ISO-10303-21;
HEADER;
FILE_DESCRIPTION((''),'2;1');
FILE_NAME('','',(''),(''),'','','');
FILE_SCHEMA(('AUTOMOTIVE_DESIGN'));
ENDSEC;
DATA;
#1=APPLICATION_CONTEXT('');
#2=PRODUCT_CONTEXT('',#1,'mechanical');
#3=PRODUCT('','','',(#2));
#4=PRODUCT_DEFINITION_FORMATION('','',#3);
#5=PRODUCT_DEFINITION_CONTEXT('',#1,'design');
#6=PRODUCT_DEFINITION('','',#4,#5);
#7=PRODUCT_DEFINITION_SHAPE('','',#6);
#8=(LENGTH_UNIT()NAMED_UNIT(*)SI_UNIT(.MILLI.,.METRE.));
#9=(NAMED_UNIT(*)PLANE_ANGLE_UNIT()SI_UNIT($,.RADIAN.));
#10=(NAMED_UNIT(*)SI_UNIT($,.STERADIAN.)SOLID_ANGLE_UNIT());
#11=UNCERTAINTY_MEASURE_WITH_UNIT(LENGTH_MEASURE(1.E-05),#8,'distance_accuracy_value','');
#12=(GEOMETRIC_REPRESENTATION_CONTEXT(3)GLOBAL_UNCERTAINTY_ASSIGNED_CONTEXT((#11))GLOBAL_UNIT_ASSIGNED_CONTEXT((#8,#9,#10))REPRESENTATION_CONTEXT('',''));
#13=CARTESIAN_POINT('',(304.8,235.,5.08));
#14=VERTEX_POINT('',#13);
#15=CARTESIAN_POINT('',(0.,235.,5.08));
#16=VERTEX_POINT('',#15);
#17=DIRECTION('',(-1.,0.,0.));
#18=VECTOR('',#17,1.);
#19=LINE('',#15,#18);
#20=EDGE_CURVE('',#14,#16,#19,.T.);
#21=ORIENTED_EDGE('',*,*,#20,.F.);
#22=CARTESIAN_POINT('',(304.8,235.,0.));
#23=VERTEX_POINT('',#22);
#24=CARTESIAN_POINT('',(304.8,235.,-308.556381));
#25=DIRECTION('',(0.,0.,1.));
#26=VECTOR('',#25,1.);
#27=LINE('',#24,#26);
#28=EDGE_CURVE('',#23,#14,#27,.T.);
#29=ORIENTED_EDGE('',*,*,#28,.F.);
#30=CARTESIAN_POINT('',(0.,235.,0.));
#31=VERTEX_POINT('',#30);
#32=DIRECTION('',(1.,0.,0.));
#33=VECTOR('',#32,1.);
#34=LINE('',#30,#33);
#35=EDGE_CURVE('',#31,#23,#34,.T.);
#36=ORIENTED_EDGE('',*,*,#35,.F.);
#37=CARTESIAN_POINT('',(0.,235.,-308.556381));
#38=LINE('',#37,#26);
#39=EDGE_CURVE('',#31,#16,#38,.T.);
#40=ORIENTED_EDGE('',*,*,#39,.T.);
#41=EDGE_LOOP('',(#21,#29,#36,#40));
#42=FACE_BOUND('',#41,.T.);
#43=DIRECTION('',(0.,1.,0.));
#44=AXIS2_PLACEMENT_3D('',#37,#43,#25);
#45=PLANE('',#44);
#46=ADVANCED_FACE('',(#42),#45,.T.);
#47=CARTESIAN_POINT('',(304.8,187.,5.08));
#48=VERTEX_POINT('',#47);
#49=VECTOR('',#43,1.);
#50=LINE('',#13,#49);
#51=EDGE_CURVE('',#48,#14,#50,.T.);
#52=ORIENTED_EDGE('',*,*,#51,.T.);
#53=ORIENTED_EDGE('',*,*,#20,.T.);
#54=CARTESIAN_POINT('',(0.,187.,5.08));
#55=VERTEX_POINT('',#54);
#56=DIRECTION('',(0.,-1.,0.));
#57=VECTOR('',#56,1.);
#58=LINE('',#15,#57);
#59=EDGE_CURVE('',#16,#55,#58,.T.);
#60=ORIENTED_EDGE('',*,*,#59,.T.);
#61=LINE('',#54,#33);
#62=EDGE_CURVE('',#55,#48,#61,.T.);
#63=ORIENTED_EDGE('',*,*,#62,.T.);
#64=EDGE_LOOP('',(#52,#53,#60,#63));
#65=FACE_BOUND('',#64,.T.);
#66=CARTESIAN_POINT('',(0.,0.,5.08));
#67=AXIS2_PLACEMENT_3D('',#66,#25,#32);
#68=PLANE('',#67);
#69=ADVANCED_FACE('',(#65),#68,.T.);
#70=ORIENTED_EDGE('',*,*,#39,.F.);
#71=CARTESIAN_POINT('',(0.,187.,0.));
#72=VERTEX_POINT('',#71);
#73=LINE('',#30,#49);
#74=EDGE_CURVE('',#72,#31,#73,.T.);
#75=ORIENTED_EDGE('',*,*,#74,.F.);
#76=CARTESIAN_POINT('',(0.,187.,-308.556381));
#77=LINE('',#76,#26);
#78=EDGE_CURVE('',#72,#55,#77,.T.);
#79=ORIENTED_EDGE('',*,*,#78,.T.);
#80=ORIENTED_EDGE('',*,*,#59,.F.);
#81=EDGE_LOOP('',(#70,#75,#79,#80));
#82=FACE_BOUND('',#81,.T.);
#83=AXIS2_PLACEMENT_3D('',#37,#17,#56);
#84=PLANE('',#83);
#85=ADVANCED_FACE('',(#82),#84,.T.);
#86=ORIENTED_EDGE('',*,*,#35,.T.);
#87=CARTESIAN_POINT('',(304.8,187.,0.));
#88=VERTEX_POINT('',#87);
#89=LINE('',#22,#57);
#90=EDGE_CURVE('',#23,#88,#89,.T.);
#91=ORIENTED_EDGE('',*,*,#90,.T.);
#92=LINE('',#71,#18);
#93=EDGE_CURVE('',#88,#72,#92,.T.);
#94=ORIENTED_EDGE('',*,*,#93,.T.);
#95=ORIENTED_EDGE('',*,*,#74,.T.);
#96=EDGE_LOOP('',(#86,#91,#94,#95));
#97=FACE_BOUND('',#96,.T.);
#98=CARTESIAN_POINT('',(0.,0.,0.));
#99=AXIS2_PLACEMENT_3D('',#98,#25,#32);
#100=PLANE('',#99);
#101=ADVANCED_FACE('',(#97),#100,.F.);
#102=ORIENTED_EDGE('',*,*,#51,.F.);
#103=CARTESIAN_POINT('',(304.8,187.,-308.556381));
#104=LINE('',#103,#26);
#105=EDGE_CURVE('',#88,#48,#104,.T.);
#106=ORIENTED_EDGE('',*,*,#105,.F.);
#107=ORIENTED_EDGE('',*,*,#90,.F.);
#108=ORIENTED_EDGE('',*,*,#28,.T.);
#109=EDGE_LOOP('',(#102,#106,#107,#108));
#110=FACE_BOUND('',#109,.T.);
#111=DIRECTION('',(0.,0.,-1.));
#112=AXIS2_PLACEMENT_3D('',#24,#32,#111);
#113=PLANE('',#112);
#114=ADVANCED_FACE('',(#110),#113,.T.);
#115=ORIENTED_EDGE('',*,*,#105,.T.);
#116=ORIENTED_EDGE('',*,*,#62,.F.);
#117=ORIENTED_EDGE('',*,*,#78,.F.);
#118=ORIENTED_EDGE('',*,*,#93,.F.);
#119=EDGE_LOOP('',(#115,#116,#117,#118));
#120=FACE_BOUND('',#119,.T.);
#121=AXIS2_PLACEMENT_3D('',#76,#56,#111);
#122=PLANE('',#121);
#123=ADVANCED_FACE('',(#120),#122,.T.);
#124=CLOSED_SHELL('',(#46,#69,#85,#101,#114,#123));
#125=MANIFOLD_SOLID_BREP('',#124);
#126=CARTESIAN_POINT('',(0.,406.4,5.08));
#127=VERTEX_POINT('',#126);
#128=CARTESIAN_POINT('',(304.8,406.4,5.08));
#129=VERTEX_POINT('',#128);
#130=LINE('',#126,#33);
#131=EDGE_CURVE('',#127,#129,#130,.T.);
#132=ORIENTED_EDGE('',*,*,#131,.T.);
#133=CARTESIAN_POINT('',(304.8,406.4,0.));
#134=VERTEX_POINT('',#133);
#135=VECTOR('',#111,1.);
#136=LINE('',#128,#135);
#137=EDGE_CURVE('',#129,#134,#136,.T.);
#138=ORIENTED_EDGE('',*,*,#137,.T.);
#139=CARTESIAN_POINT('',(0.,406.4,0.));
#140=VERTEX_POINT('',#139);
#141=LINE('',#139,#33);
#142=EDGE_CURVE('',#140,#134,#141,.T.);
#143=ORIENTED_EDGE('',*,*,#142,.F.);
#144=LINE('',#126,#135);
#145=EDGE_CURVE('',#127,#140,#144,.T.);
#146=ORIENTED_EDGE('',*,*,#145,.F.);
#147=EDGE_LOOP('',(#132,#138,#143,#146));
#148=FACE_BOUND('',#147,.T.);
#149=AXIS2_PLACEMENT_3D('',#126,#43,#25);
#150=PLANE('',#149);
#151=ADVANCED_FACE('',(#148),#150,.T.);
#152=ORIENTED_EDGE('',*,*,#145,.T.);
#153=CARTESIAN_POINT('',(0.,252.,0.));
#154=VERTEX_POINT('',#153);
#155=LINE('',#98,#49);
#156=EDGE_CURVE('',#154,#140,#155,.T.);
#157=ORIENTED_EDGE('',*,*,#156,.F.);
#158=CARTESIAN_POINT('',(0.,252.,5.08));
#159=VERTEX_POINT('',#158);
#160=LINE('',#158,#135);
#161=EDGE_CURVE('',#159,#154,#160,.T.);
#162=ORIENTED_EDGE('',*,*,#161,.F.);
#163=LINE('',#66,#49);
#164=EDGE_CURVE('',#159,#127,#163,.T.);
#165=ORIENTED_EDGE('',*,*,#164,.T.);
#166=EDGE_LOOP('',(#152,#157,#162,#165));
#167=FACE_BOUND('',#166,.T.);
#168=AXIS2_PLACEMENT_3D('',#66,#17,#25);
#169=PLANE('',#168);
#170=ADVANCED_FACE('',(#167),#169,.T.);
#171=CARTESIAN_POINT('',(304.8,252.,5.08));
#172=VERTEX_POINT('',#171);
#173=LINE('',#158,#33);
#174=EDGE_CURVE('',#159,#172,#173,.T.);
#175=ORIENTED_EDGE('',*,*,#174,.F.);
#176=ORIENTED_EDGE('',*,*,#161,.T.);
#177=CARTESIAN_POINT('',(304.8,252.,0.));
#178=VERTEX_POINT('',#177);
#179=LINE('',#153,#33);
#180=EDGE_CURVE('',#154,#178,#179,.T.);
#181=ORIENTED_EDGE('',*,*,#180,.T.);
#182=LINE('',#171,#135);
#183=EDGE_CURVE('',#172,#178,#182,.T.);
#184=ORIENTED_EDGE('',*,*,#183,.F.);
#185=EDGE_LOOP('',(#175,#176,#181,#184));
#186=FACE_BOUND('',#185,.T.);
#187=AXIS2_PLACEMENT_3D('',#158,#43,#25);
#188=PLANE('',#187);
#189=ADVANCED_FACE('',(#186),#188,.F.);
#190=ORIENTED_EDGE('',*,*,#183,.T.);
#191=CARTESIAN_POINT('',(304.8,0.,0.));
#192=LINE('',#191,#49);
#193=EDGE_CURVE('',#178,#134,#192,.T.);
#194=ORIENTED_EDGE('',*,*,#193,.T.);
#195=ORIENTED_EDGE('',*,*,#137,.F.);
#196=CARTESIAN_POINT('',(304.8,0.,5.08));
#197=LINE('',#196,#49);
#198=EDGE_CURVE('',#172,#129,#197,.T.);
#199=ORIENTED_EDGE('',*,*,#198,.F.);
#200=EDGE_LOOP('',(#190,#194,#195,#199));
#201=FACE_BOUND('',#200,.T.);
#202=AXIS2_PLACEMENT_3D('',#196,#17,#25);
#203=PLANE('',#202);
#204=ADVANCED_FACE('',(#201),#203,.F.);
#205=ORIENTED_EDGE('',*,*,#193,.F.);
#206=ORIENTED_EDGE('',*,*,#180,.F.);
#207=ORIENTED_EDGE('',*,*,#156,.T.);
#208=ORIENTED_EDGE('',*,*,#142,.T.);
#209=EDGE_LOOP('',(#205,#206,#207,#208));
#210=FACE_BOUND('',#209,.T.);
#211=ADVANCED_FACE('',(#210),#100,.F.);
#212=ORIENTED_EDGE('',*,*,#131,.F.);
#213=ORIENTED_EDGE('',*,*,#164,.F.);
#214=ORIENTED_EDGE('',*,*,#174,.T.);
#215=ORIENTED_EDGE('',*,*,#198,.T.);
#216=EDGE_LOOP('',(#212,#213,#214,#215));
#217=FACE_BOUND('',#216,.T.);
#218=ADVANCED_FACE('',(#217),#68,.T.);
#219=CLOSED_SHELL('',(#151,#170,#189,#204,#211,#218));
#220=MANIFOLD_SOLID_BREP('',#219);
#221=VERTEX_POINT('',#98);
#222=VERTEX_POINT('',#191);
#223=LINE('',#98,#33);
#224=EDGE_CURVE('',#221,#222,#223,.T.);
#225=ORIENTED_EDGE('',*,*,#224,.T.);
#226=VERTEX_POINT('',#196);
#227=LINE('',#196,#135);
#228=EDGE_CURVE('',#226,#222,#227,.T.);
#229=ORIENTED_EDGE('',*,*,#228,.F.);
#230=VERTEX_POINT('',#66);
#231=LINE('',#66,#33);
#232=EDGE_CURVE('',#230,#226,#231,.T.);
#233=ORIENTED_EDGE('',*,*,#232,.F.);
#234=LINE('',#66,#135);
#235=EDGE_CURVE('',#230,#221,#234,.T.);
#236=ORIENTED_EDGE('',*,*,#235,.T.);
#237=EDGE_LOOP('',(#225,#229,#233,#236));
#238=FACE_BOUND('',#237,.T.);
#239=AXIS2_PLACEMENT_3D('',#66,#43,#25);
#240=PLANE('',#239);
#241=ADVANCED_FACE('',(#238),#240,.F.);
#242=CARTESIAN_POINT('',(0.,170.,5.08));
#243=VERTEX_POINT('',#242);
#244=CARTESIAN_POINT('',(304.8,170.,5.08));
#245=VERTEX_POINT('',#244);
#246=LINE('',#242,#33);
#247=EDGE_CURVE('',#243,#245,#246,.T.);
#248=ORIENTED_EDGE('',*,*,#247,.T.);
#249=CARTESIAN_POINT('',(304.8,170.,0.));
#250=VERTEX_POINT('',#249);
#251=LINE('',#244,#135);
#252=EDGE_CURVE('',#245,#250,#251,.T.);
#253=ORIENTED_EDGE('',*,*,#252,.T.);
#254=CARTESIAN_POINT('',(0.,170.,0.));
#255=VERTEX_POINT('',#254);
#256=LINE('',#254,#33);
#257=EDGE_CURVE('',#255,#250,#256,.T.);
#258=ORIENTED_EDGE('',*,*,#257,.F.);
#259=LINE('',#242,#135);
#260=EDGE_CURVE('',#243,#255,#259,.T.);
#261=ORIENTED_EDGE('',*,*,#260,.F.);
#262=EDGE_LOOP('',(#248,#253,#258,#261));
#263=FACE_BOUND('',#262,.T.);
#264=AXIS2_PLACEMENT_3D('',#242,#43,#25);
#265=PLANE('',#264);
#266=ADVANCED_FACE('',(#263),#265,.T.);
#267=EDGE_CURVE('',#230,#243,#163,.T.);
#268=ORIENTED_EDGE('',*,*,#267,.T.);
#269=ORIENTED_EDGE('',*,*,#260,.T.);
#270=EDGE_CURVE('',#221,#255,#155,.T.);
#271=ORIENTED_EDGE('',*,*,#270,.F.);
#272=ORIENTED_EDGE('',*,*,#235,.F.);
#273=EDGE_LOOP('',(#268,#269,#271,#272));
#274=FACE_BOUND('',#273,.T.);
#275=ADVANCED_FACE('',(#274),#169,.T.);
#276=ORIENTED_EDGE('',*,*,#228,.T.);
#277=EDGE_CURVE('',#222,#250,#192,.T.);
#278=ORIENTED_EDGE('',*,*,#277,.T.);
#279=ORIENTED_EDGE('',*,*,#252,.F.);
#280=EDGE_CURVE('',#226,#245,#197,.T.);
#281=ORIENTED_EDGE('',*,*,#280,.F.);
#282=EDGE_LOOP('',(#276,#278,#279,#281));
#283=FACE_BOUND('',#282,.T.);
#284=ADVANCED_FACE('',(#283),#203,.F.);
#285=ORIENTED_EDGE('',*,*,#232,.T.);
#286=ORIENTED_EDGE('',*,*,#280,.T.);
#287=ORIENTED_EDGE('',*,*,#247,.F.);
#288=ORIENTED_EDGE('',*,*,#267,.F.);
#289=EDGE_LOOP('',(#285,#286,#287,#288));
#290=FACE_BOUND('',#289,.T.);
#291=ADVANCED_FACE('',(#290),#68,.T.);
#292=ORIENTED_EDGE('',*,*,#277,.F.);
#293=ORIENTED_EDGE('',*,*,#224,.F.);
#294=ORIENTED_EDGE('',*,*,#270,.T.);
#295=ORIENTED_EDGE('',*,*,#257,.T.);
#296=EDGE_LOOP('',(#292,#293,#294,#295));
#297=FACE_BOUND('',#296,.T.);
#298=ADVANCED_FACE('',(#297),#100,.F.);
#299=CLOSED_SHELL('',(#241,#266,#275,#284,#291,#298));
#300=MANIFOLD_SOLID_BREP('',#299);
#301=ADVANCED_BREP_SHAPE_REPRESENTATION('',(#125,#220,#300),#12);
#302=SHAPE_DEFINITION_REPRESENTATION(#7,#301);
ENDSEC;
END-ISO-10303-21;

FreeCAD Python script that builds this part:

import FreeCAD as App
import Part
import Sketcher

V = App.Vector
Q = App.Units.Quantity


def add_polygon(sketch, points):
    """Adds a closed chain of lines whose ends are joined by coincident constraints."""
    first, n = sketch.GeometryCount, len(points)
    for a, b in zip(points, points[1:] + points[:1]):
        sketch.addGeometry(Part.LineSegment(App.Vector(*a, 0), App.Vector(*b, 0)), False)
    for i in range(n):
        sketch.addConstraint(Sketcher.Constraint("Coincident", first + i, 2, first + (i + 1) % n, 1))

doc = App.newDocument("Part")
params = doc.addObject("Spreadsheet::Sheet", "Params")
for row, (alias, value) in enumerate([
    ("sketch1_width", "304.8 mm"),
    ("sketch1_height", "154.4 mm"),
    ("pad1_length", "5.08 mm"),
    ("sketch2_height", "170 mm"),
    ("sketch2_width", "304.8 mm"),
    ("pad2_length", "5.08 mm"),
    ("sketch3_height", "48 mm"),
    ("sketch3_width", "304.8 mm"),
    ("pad3_length", "5.08 mm"),
], start=1):
    params.set(f"A{row}", alias)
    params.set(f"B{row}", "=" + value)
    params.setAlias(f"B{row}", alias)

body = doc.addObject("PartDesign::Body", "Body")

# Sketch on XY plane
sketch1 = body.newObject("Sketcher::SketchObject", "Sketch")
sketch1.AttachmentSupport = (doc.getObject("XY_Plane"), [""])
sketch1.MapMode = "FlatFace"
add_polygon(sketch1, [(0, 406.4), (0, 252), (304.8, 252), (304.8, 406.4)])  # lines 0-3
sketch1.addConstraint([
    Sketcher.Constraint("Vertical", 0),
    Sketcher.Constraint("Horizontal", 1),
    Sketcher.Constraint("Vertical", 2),
    Sketcher.Constraint("Horizontal", 3),
    Sketcher.Constraint("PointOnObject", 0, 2, -2),
    Sketcher.Constraint("DistanceX", 1, 1, 1, 2, Q("304.8 mm")),
    Sketcher.Constraint("DistanceY", 0, 2, 0, 1, Q("154.4 mm")),
    Sketcher.Constraint("DistanceY", -1, 1, 0, 2, Q("252 mm")),
])
sketch1.setExpression("Constraints[9]", "Params.sketch1_width")
sketch1.setExpression("Constraints[10]", "Params.sketch1_height")
pad1 = body.newObject("PartDesign::Pad", "Pad")
pad1.Profile = sketch1
pad1.setExpression("Length", "Params.pad1_length")
body2 = doc.addObject("PartDesign::Body", "Body001")

# Sketch on XY plane
sketch2 = body2.newObject("Sketcher::SketchObject", "Sketch001")
sketch2.AttachmentSupport = (doc.getObject("XY_Plane001"), [""])
sketch2.MapMode = "FlatFace"
add_polygon(sketch2, [(0, 170), (0, 0), (304.8, 0), (304.8, 170)])  # lines 0-3
sketch2.addConstraint([
    Sketcher.Constraint("Vertical", 0),
    Sketcher.Constraint("Horizontal", 1),
    Sketcher.Constraint("Vertical", 2),
    Sketcher.Constraint("Horizontal", 3),
    Sketcher.Constraint("Coincident", 0, 2, -1, 1),
    Sketcher.Constraint("DistanceY", 0, 2, 0, 1, Q("170 mm")),
    Sketcher.Constraint("DistanceX", 1, 1, 1, 2, Q("304.8 mm")),
])
sketch2.setExpression("Constraints[9]", "Params.sketch2_height")
sketch2.setExpression("Constraints[10]", "Params.sketch2_width")
pad2 = body2.newObject("PartDesign::Pad", "Pad001")
pad2.Profile = sketch2
pad2.setExpression("Length", "Params.pad2_length")
body3 = doc.addObject("PartDesign::Body", "Body002")

# Sketch on XY plane
sketch3 = body3.newObject("Sketcher::SketchObject", "Sketch002")
sketch3.AttachmentSupport = (doc.getObject("XY_Plane002"), [""])
sketch3.MapMode = "FlatFace"
sketch3.AttachmentOffset = App.Placement(V(0, 0, 5.08), App.Rotation())
add_polygon(sketch3, [(0, 235), (0, 187), (304.8, 187), (304.8, 235)])  # lines 0-3
sketch3.addConstraint([
    Sketcher.Constraint("Vertical", 0),
    Sketcher.Constraint("Horizontal", 1),
    Sketcher.Constraint("Vertical", 2),
    Sketcher.Constraint("Horizontal", 3),
    Sketcher.Constraint("PointOnObject", 0, 2, -2),
    Sketcher.Constraint("DistanceY", 0, 2, 0, 1, Q("48 mm")),
    Sketcher.Constraint("DistanceX", 1, 1, 1, 2, Q("304.8 mm")),
    Sketcher.Constraint("DistanceY", -1, 1, 0, 2, Q("187 mm")),
])
sketch3.setExpression("Constraints[9]", "Params.sketch3_height")
sketch3.setExpression("Constraints[10]", "Params.sketch3_width")
pad3 = body3.newObject("PartDesign::Pad", "Pad002")
pad3.Profile = sketch3
pad3.setExpression("Length", "Params.pad3_length")
pad3.Reversed = True

doc.recompute()
